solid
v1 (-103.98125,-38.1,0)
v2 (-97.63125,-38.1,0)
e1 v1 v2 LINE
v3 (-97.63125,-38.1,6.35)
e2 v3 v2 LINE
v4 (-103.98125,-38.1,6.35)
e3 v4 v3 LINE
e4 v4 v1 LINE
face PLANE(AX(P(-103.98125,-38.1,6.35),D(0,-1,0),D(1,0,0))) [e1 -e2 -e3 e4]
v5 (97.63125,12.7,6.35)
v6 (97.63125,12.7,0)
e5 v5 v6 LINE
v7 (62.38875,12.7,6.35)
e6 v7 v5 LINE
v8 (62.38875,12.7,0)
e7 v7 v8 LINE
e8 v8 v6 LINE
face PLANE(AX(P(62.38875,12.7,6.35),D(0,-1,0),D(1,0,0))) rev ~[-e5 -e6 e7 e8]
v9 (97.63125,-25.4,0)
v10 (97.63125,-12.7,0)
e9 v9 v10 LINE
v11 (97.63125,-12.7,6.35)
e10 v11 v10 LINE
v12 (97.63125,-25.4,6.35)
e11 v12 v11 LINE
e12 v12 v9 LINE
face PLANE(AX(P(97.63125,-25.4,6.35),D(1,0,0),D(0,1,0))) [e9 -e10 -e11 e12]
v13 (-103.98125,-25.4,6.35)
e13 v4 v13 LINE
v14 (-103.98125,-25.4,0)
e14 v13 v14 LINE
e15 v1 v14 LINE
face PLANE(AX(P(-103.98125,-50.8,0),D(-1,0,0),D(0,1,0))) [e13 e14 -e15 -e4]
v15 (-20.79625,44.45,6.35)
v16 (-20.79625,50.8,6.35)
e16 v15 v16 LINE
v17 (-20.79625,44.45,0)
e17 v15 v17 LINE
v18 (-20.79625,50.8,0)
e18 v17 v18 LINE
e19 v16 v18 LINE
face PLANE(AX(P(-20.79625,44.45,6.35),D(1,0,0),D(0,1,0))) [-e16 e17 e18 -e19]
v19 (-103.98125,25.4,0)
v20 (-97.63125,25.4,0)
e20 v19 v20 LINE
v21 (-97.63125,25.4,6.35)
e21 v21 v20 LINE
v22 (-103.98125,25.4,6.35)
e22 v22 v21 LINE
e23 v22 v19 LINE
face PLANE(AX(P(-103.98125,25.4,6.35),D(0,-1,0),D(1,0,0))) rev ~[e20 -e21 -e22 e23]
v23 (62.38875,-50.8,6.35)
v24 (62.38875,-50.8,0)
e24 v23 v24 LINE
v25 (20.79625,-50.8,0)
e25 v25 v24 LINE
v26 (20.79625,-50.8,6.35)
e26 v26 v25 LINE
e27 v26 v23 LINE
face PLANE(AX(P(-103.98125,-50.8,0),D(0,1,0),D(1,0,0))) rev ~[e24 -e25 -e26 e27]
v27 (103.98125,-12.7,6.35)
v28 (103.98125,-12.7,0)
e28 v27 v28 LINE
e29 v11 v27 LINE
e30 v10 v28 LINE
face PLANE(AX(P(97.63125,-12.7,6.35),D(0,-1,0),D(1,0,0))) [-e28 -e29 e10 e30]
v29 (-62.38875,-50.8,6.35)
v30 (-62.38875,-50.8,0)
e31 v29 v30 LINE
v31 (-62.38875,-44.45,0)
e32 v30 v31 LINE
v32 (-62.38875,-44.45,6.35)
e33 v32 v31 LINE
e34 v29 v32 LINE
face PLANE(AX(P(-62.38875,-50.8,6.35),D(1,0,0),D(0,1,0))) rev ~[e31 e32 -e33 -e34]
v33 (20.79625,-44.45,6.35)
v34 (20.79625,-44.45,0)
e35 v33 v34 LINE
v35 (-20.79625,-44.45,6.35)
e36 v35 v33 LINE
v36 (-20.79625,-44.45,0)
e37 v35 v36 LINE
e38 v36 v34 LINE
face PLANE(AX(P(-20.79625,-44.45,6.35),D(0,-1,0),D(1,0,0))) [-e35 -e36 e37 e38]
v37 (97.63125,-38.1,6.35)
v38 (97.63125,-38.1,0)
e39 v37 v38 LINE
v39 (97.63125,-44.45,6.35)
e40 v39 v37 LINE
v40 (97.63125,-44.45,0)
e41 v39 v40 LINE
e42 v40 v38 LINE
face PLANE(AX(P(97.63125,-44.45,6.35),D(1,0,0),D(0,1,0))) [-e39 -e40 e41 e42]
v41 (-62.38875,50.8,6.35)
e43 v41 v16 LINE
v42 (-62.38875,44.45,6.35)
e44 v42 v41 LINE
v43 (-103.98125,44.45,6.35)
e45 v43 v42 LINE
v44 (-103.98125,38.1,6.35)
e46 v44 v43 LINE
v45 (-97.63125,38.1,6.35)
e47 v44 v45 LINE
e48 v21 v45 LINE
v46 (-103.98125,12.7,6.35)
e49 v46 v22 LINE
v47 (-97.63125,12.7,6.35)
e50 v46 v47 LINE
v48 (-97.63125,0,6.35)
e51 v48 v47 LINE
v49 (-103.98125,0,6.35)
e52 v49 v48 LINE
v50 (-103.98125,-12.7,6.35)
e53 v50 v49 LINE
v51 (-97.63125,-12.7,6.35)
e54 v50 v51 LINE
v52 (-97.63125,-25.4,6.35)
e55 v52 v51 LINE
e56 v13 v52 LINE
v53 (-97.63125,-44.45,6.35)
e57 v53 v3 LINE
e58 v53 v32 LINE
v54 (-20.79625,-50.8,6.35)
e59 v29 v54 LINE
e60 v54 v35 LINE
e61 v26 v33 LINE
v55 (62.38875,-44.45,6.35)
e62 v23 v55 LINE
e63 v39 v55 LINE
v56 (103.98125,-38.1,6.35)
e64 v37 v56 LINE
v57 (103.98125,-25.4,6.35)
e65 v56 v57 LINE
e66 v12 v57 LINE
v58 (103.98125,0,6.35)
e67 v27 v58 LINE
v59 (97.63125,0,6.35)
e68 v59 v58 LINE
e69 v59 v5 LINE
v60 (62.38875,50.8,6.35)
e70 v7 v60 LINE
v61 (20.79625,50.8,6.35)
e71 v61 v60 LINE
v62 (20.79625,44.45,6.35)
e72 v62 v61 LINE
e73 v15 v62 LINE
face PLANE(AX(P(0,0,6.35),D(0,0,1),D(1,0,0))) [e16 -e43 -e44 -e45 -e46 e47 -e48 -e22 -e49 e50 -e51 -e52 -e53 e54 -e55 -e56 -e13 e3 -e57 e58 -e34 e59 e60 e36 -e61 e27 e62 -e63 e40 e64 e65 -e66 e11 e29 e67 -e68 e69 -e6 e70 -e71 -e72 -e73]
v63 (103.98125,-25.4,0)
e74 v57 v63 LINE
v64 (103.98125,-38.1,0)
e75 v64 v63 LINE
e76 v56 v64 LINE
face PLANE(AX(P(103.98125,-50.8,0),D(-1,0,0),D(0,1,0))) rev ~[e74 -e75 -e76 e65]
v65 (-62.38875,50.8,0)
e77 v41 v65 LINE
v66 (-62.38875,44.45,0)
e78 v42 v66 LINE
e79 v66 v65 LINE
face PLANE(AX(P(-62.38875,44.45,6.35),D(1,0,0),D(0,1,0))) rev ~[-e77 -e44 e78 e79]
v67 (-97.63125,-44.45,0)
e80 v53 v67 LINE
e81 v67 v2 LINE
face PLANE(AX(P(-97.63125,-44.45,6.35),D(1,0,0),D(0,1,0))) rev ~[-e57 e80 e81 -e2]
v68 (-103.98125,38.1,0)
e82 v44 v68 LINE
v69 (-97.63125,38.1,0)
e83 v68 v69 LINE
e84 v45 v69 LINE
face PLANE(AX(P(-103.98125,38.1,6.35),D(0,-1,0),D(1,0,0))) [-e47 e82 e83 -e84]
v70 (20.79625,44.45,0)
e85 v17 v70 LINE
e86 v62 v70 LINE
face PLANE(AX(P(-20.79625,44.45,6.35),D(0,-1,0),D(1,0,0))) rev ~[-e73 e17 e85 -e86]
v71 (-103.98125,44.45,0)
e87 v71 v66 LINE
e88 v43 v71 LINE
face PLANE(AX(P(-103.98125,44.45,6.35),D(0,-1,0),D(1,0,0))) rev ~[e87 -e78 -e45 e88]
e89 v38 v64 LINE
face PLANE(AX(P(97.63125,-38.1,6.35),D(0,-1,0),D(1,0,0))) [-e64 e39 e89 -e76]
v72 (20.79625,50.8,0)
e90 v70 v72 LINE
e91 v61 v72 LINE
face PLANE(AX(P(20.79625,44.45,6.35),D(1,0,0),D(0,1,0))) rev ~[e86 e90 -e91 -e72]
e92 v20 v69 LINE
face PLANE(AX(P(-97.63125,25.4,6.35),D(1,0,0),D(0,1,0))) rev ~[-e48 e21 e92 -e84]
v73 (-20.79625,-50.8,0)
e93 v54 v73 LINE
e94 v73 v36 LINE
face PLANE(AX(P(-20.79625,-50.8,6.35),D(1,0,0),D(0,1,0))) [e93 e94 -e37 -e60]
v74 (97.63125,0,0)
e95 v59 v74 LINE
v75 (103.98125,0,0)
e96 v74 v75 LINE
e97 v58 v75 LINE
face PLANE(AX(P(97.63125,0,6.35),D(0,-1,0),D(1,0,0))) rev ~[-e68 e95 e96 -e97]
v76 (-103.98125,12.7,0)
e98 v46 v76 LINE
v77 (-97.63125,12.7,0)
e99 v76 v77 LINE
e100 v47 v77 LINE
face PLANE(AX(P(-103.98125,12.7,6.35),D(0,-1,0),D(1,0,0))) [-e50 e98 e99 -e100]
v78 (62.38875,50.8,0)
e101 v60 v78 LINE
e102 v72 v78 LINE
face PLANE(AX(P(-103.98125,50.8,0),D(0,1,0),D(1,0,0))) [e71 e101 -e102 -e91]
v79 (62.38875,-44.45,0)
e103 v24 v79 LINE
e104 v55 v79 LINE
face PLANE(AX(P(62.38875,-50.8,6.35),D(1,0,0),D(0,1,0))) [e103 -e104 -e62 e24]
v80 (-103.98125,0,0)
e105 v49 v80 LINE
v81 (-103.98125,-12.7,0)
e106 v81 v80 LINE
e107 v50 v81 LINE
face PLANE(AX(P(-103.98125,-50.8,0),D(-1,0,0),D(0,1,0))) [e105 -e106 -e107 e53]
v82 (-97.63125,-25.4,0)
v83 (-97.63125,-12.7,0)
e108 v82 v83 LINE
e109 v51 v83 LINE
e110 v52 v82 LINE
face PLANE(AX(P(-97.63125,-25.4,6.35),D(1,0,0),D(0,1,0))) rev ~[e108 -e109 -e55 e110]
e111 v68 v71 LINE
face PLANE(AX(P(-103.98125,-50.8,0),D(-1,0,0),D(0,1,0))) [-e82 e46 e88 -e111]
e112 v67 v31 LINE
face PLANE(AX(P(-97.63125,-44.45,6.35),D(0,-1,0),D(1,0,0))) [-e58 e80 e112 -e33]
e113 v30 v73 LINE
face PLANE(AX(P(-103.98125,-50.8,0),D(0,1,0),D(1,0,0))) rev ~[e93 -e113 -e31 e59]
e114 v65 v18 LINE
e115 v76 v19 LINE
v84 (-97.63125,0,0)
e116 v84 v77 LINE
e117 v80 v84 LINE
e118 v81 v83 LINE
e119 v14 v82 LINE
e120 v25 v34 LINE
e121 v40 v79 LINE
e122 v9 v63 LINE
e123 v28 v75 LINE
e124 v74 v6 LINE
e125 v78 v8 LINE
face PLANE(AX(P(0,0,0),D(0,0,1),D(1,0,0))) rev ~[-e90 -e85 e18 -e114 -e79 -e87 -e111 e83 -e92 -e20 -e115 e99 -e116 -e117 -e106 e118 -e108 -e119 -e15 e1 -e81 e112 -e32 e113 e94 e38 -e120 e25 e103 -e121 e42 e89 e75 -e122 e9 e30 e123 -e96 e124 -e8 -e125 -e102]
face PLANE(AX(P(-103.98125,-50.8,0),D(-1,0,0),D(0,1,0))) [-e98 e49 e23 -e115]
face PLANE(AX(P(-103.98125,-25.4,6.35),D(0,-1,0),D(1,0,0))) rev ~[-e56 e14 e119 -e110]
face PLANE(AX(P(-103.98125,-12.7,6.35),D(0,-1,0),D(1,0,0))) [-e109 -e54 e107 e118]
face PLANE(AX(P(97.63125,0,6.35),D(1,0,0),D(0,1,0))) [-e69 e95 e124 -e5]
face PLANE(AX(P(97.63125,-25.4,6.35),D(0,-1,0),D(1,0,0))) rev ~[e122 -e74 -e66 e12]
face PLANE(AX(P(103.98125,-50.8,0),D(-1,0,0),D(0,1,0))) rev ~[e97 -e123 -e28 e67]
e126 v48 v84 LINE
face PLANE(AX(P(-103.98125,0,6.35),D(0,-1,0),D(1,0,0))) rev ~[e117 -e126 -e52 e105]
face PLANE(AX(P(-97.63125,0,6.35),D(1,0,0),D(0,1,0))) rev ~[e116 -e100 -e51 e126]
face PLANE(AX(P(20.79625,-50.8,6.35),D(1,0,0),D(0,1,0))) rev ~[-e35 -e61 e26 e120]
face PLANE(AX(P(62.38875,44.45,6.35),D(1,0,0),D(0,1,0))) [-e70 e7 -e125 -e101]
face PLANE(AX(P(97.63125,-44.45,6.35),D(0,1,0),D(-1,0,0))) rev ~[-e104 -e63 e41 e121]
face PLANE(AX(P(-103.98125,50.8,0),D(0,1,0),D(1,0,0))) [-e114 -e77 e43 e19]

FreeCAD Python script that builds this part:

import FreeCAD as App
import Part
import Sketcher
Q = App.Units.Quantity

doc = App.newDocument("Part")
params = doc.addObject("Spreadsheet::Sheet", "Params")
for row, (alias, value) in enumerate([
    ("sketch1_height", "4 in"),
    ("sketch1_width", "8.1875 in"),
    ("pad1_length", "0.25 in"),
    ("sketch2_height", "0.5 in"),
    ("pocket1_length", "0.25 in"),
    ("sketch3_height", "1.25 in"),
    ("pocket2_length", "0.25 in"),
], start=1):
    params.set(f"A{row}", alias)
    params.set(f"B{row}", "=" + value)
    params.setAlias(f"B{row}", alias)

body = doc.addObject("PartDesign::Body", "Body")

sketch1 = body.newObject("Sketcher::SketchObject", "Sketch")
sketch1.AttachmentSupport = (doc.getObject("XY_Plane"), [""])
sketch1.MapMode = "FlatFace"
sketch1.addGeometry([
    Part.LineSegment(App.Vector(-103.98125, 50.8, 0), App.Vector(-103.98125, -50.8, 0)),
    Part.LineSegment(App.Vector(-103.98125, -50.8, 0), App.Vector(103.98125, -50.8, 0)),
    Part.LineSegment(App.Vector(103.98125, -50.8, 0), App.Vector(103.98125, 50.8, 0)),
    Part.LineSegment(App.Vector(103.98125, 50.8, 0), App.Vector(-103.98125, 50.8, 0)),
], False)
sketch1.addConstraint([
    Sketcher.Constraint("Coincident", 0, 2, 1, 1),
    Sketcher.Constraint("Coincident", 1, 2, 2, 1),
    Sketcher.Constraint("Coincident", 2, 2, 3, 1),
    Sketcher.Constraint("Coincident", 3, 2, 0, 1),
    Sketcher.Constraint("Vertical", 0),
    Sketcher.Constraint("Horizontal", 1),
    Sketcher.Constraint("Vertical", 2),
    Sketcher.Constraint("Horizontal", 3),
    Sketcher.Constraint("Symmetric", 0, 2, 2, 2, -1, 1),
    Sketcher.Constraint("DistanceY", 0, 2, 0, 1, Q("4 in")),
    Sketcher.Constraint("DistanceX", 1, 1, 1, 2, Q("8.1875 in")),
])
sketch1.setExpression("Constraints[9]", "Params.sketch1_height")
sketch1.setExpression("Constraints[10]", "Params.sketch1_width")
pad1 = body.newObject("PartDesign::Pad", "Pad")
pad1.Profile = sketch1
pad1.setExpression("Length", "Params.pad1_length")

sketch2 = body.newObject("Sketcher::SketchObject", "Sketch001")
sketch2.AttachmentSupport = (doc.getObject("XY_Plane"), [""])
sketch2.MapMode = "FlatFace"
sketch2.AttachmentOffset = App.Placement(App.Vector(0, 0, 0.25 * 25.4), App.Rotation())
sketch2.addGeometry([
    Part.LineSegment(App.Vector(-20.79625, 50.8, 0), App.Vector(-20.79625, 44.45, 0)),
    Part.LineSegment(App.Vector(-20.79625, 44.45, 0), App.Vector(20.79625, 44.45, 0)),
    Part.LineSegment(App.Vector(20.79625, 44.45, 0), App.Vector(20.79625, 50.8, 0)),
    Part.LineSegment(App.Vector(20.79625, 50.8, 0), App.Vector(-20.79625, 50.8, 0)),
    Part.LineSegment(App.Vector(-103.98125, 50.8, 0), App.Vector(-103.98125, 44.45, 0)),
    Part.LineSegment(App.Vector(-103.98125, 44.45, 0), App.Vector(-62.38875, 44.45, 0)),
    Part.LineSegment(App.Vector(-62.38875, 44.45, 0), App.Vector(-62.38875, 50.8, 0)),
    Part.LineSegment(App.Vector(-62.38875, 50.8, 0), App.Vector(-103.98125, 50.8, 0)),
    Part.LineSegment(App.Vector(62.38875, 50.8, 0), App.Vector(62.38875, 44.45, 0)),
    Part.LineSegment(App.Vector(62.38875, 44.45, 0), App.Vector(103.98125, 44.45, 0)),
    Part.LineSegment(App.Vector(103.98125, 44.45, 0), App.Vector(103.98125, 50.8, 0)),
    Part.LineSegment(App.Vector(103.98125, 50.8, 0), App.Vector(62.38875, 50.8, 0)),
    Part.LineSegment(App.Vector(62.38875, -44.45, 0), App.Vector(62.38875, -50.8, 0)),
    Part.LineSegment(App.Vector(62.38875, -50.8, 0), App.Vector(103.98125, -50.8, 0)),
    Part.LineSegment(App.Vector(103.98125, -50.8, 0), App.Vector(103.98125, -38.1, 0)),
    Part.LineSegment(App.Vector(103.98125, -38.1, 0), App.Vector(97.63125, -38.1, 0)),
    Part.LineSegment(App.Vector(97.63125, -38.1, 0), App.Vector(97.63125, -44.45, 0)),
    Part.LineSegment(App.Vector(97.63125, -44.45, 0), App.Vector(62.38875, -44.45, 0)),
    Part.LineSegment(App.Vector(-20.79625, -44.45, 0), App.Vector(-20.79625, -50.8, 0)),
    Part.LineSegment(App.Vector(-20.79625, -50.8, 0), App.Vector(20.79625, -50.8, 0)),
    Part.LineSegment(App.Vector(20.79625, -50.8, 0), App.Vector(20.79625, -44.45, 0)),
    Part.LineSegment(App.Vector(20.79625, -44.45, 0), App.Vector(-20.79625, -44.45, 0)),
    Part.LineSegment(App.Vector(-103.98125, -38.1, 0), App.Vector(-103.98125, -50.8, 0)),
    Part.LineSegment(App.Vector(-103.98125, -50.8, 0), App.Vector(-62.38875, -50.8, 0)),
    Part.LineSegment(App.Vector(-62.38875, -50.8, 0), App.Vector(-62.38875, -44.45, 0)),
    Part.LineSegment(App.Vector(-62.38875, -44.45, 0), App.Vector(-97.63125, -44.45, 0)),
    Part.LineSegment(App.Vector(-97.63125, -44.45, 0), App.Vector(-97.63125, -38.1, 0)),
    Part.LineSegment(App.Vector(-97.63125, -38.1, 0), App.Vector(-103.98125, -38.1, 0)),
    Part.LineSegment(App.Vector(-103.98125, 38.1, 0), App.Vector(-103.98125, 25.4, 0)),
    Part.LineSegment(App.Vector(-103.98125, 25.4, 0), App.Vector(-97.63125, 25.4, 0)),
    Part.LineSegment(App.Vector(-97.63125, 25.4, 0), App.Vector(-97.63125, 38.1, 0)),
    Part.LineSegment(App.Vector(-97.63125, 38.1, 0), App.Vector(-103.98125, 38.1, 0)),
    Part.LineSegment(App.Vector(-103.98125, 12.7, 0), App.Vector(-103.98125, 0, 0)),
    Part.LineSegment(App.Vector(-103.98125, 0, 0), App.Vector(-97.63125, 0, 0)),
    Part.LineSegment(App.Vector(-97.63125, 0, 0), App.Vector(-97.63125, 12.7, 0)),
    Part.LineSegment(App.Vector(-97.63125, 12.7, 0), App.Vector(-103.98125, 12.7, 0)),
    Part.LineSegment(App.Vector(-103.98125, -12.7, 0), App.Vector(-103.98125, -25.4, 0)),
    Part.LineSegment(App.Vector(-103.98125, -25.4, 0), App.Vector(-97.63125, -25.4, 0)),
    Part.LineSegment(App.Vector(-97.63125, -25.4, 0), App.Vector(-97.63125, -12.7, 0)),
    Part.LineSegment(App.Vector(-97.63125, -12.7, 0), App.Vector(-103.98125, -12.7, 0)),
    Part.LineSegment(App.Vector(97.63125, -12.7, 0), App.Vector(97.63125, -25.4, 0)),
    Part.LineSegment(App.Vector(97.63125, -25.4, 0), App.Vector(103.98125, -25.4, 0)),
    Part.LineSegment(App.Vector(103.98125, -25.4, 0), App.Vector(103.98125, -12.7, 0)),
    Part.LineSegment(App.Vector(103.98125, -12.7, 0), App.Vector(97.63125, -12.7, 0)),
    Part.LineSegment(App.Vector(97.63125, 12.7, 0), App.Vector(97.63125, 0, 0)),
    Part.LineSegment(App.Vector(97.63125, 0, 0), App.Vector(103.98125, 0, 0)),
    Part.LineSegment(App.Vector(103.98125, 0, 0), App.Vector(103.98125, 12.7, 0)),
    Part.LineSegment(App.Vector(103.98125, 12.7, 0), App.Vector(97.63125, 12.7, 0)),
    Part.LineSegment(App.Vector(97.63125, 38.1, 0), App.Vector(97.63125, 25.4, 0)),
    Part.LineSegment(App.Vector(97.63125, 25.4, 0), App.Vector(103.98125, 25.4, 0)),
    Part.LineSegment(App.Vector(103.98125, 25.4, 0), App.Vector(103.98125, 38.1, 0)),
    Part.LineSegment(App.Vector(103.98125, 38.1, 0), App.Vector(97.63125, 38.1, 0)),
], False)
sketch2.addConstraint([
    Sketcher.Constraint("Coincident", 0, 2, 1, 1),
    Sketcher.Constraint("Coincident", 1, 2, 2, 1),
    Sketcher.Constraint("Coincident", 2, 2, 3, 1),
    Sketcher.Constraint("Coincident", 3, 2, 0, 1),
    Sketcher.Constraint("Coincident", 4, 2, 5, 1),
    Sketcher.Constraint("Coincident", 5, 2, 6, 1),
    Sketcher.Constraint("Coincident", 6, 2, 7, 1),
    Sketcher.Constraint("Coincident", 7, 2, 4, 1),
    Sketcher.Constraint("Coincident", 8, 2, 9, 1),
    Sketcher.Constraint("Coincident", 9, 2, 10, 1),
    Sketcher.Constraint("Coincident", 10, 2, 11, 1),
    Sketcher.Constraint("Coincident", 11, 2, 8, 1),
    Sketcher.Constraint("Coincident", 12, 2, 13, 1),
    Sketcher.Constraint("Coincident", 13, 2, 14, 1),
    Sketcher.Constraint("Coincident", 14, 2, 15, 1),
    Sketcher.Constraint("Coincident", 15, 2, 16, 1),
    Sketcher.Constraint("Coincident", 16, 2, 17, 1),
    Sketcher.Constraint("Coincident", 17, 2, 12, 1),
    Sketcher.Constraint("Coincident", 18, 2, 19, 1),
    Sketcher.Constraint("Coincident", 19, 2, 20, 1),
    Sketcher.Constraint("Coincident", 20, 2, 21, 1),
    Sketcher.Constraint("Coincident", 21, 2, 18, 1),
    Sketcher.Constraint("Coincident", 22, 2, 23, 1),
    Sketcher.Constraint("Coincident", 23, 2, 24, 1),
    Sketcher.Constraint("Coincident", 24, 2, 25, 1),
    Sketcher.Constraint("Coincident", 25, 2, 26, 1),
    Sketcher.Constraint("Coincident", 26, 2, 27, 1),
    Sketcher.Constraint("Coincident", 27, 2, 22, 1),
    Sketcher.Constraint("Coincident", 28, 2, 29, 1),
    Sketcher.Constraint("Coincident", 29, 2, 30, 1),
    Sketcher.Constraint("Coincident", 30, 2, 31, 1),
    Sketcher.Constraint("Coincident", 31, 2, 28, 1),
    Sketcher.Constraint("Coincident", 32, 2, 33, 1),
    Sketcher.Constraint("Coincident", 33, 2, 34, 1),
    Sketcher.Constraint("Coincident", 34, 2, 35, 1),
    Sketcher.Constraint("Coincident", 35, 2, 32, 1),
    Sketcher.Constraint("Coincident", 36, 2, 37, 1),
    Sketcher.Constraint("Coincident", 37, 2, 38, 1),
    Sketcher.Constraint("Coincident", 38, 2, 39, 1),
    Sketcher.Constraint("Coincident", 39, 2, 36, 1),
    Sketcher.Constraint("Coincident", 40, 2, 41, 1),
    Sketcher.Constraint("Coincident", 41, 2, 42, 1),
    Sketcher.Constraint("Coincident", 42, 2, 43, 1),
    Sketcher.Constraint("Coincident", 43, 2, 40, 1),
    Sketcher.Constraint("Coincident", 44, 2, 45, 1),
    Sketcher.Constraint("Coincident", 45, 2, 46, 1),
    Sketcher.Constraint("Coincident", 46, 2, 47, 1),
    Sketcher.Constraint("Coincident", 47, 2, 44, 1),
    Sketcher.Constraint("Coincident", 48, 2, 49, 1),
    Sketcher.Constraint("Coincident", 49, 2, 50, 1),
    Sketcher.Constraint("Coincident", 50, 2, 51, 1),
    Sketcher.Constraint("Coincident", 51, 2, 48, 1),
    Sketcher.Constraint("Vertical", 0),
    Sketcher.Constraint("Horizontal", 1),
    Sketcher.Constraint("Vertical", 2),
    Sketcher.Constraint("Horizontal", 3),
    Sketcher.Constraint("Vertical", 4),
    Sketcher.Constraint("Horizontal", 5),
    Sketcher.Constraint("Vertical", 6),
    Sketcher.Constraint("Horizontal", 7),
    Sketcher.Constraint("Vertical", 8),
    Sketcher.Constraint("Horizontal", 9),
    Sketcher.Constraint("Vertical", 10),
    Sketcher.Constraint("Horizontal", 11),
    Sketcher.Constraint("Vertical", 12),
    Sketcher.Constraint("Horizontal", 13),
    Sketcher.Constraint("Vertical", 14),
    Sketcher.Constraint("Horizontal", 15),
    Sketcher.Constraint("Vertical", 16),
    Sketcher.Constraint("Horizontal", 17),
    Sketcher.Constraint("Vertical", 18),
    Sketcher.Constraint("Horizontal", 19),
    Sketcher.Constraint("Vertical", 20),
    Sketcher.Constraint("Horizontal", 21),
    Sketcher.Constraint("Vertical", 22),
    Sketcher.Constraint("Horizontal", 23),
    Sketcher.Constraint("Vertical", 24),
    Sketcher.Constraint("Horizontal", 25),
    Sketcher.Constraint("Vertical", 26),
    Sketcher.Constraint("Horizontal", 27),
    Sketcher.Constraint("Vertical", 28),
    Sketcher.Constraint("Horizontal", 29),
    Sketcher.Constraint("Vertical", 30),
    Sketcher.Constraint("Horizontal", 31),
    Sketcher.Constraint("Vertical", 32),
    Sketcher.Constraint("Horizontal", 33),
    Sketcher.Constraint("Vertical", 34),
    Sketcher.Constraint("Horizontal", 35),
    Sketcher.Constraint("Vertical", 36),
    Sketcher.Constraint("Horizontal", 37),
    Sketcher.Constraint("Vertical", 38),
    Sketcher.Constraint("Horizontal", 39),
    Sketcher.Constraint("Vertical", 40),
    Sketcher.Constraint("Horizontal", 41),
    Sketcher.Constraint("Vertical", 42),
    Sketcher.Constraint("Horizontal", 43),
    Sketcher.Constraint("Vertical", 44),
    Sketcher.Constraint("Horizontal", 45),
    Sketcher.Constraint("Vertical", 46),
    Sketcher.Constraint("Horizontal", 47),
    Sketcher.Constraint("Vertical", 48),
    Sketcher.Constraint("Horizontal", 49),
    Sketcher.Constraint("Vertical", 50),
    Sketcher.Constraint("Horizontal", 51),
    Sketcher.Constraint("Symmetric", 6, 2, 12, 2, -1, 1),
    Sketcher.Constraint("Symmetric", 2, 2, 18, 2, -1, 1),
    Sketcher.Constraint("Symmetric", 0, 2, 20, 2, -1, 1),
    Sketcher.Constraint("Symmetric", 10, 2, 22, 2, -1, 1),
    Sketcher.Constraint("Symmetric", 8, 2, 24, 2, -1, 1),
    Sketcher.Constraint("Symmetric", 15, 2, 30, 2, -1, 1),
    Sketcher.Constraint("Symmetric", 29, 2, 40, 2, -1, 1),
    Sketcher.Constraint("Symmetric", 35, 2, 42, 2, -1, 1),
    Sketcher.Constraint("Symmetric", 33, 2, 44, 2, -1, 1),
    Sketcher.Constraint("Symmetric", 39, 2, 46, 2, -1, 1),
    Sketcher.Constraint("Symmetric", 37, 2, 48, 2, -1, 1),
    Sketcher.Constraint("Symmetric", 27, 2, 50, 2, -1, 1),
    Sketcher.Constraint("Symmetric", 5, 2, 8, 2, -2),
    Sketcher.Constraint("Symmetric", 7, 2, 10, 2, -2),
    Sketcher.Constraint("Symmetric", 16, 2, 25, 2, -2),
    Sketcher.Constraint("Symmetric", 14, 2, 27, 2, -2),
    Sketcher.Constraint("Symmetric", 37, 2, 40, 2, -2),
    Sketcher.Constraint("Symmetric", 39, 2, 42, 2, -2),
    Sketcher.Constraint("PointOnObject", 32, 2, -1),
    Sketcher.Constraint("Horizontal", 1, 2, 4, 2),
    Sketcher.Constraint("Horizontal", 3, 2, 6, 2),
    Sketcher.Constraint("Vertical", 3, 2, 18, 2),
    Sketcher.Constraint("Vertical", 27, 2, 28, 2),
    Sketcher.Constraint("Vertical", 31, 2, 32, 2),
    Sketcher.Constraint("Vertical", 30, 2, 33, 2),
    Sketcher.Constraint("Equal", 3, 5),
    Sketcher.Constraint("Equal", 51, 0),
    Sketcher.Constraint("Equal", 12, 16),
    Sketcher.Constraint("Equal", 22, 28),
    Sketcher.Constraint("Equal", 30, 32),
    Sketcher.Constraint("Equal", 34, 36),
    Sketcher.Constraint("DistanceY", 14, 1, 14, 2, Q("0.5 in")),
    Sketcher.Constraint("DistanceX", 1, 1, 1, 2, Q("1.6375 in")),
    Sketcher.Constraint("DistanceX", 4, 2, -1, 1, Q("4.09375 in")),
])
sketch2.setExpression("Constraints[135]", "Params.sketch2_height")
pocket1 = body.newObject("PartDesign::Pocket", "Pocket")
pocket1.Profile = sketch2
pocket1.setExpression("Length", "Params.pocket1_length")

sketch3 = body.newObject("Sketcher::SketchObject", "Sketch002")
sketch3.AttachmentSupport = (doc.getObject("XY_Plane"), [""])
sketch3.MapMode = "FlatFace"
sketch3.AttachmentOffset = App.Placement(App.Vector(0, 0, 0.25 * 25.4), App.Rotation())
sketch3.addGeometry([
    Part.LineSegment(App.Vector(62.38875, 44.45, 0), App.Vector(62.38875, 12.7, 0)),
    Part.LineSegment(App.Vector(62.38875, 12.7, 0), App.Vector(103.98125, 12.7, 0)),
    Part.LineSegment(App.Vector(103.98125, 12.7, 0), App.Vector(103.98125, 44.45, 0)),
    Part.LineSegment(App.Vector(103.98125, 44.45, 0), App.Vector(62.38875, 44.45, 0)),
], False)
sketch3.addConstraint([
    Sketcher.Constraint("Coincident", 0, 2, 1, 1),
    Sketcher.Constraint("Coincident", 1, 2, 2, 1),
    Sketcher.Constraint("Coincident", 2, 2, 3, 1),
    Sketcher.Constraint("Coincident", 3, 2, 0, 1),
    Sketcher.Constraint("Vertical", 0),
    Sketcher.Constraint("Horizontal", 1),
    Sketcher.Constraint("Vertical", 2),
    Sketcher.Constraint("Horizontal", 3),
    Sketcher.Constraint("DistanceY", 0, 2, 0, 1, Q("1.25 in")),
    Sketcher.Constraint("DistanceY", -1, 1, 0, 2, Q("0.5 in")),
    Sketcher.Constraint("DistanceX", 1, 1, 1, 2, Q("1.6375 in")),
    Sketcher.Constraint("DistanceX", -1, 1, 1, 2, Q("4.09375 in")),
])
sketch3.setExpression("Constraints[8]", "Params.sketch3_height")
pocket2 = body.newObject("PartDesign::Pocket", "Pocket001")
pocket2.Profile = sketch3
pocket2.setExpression("Length", "Params.pocket2_length")

doc.recompute()
